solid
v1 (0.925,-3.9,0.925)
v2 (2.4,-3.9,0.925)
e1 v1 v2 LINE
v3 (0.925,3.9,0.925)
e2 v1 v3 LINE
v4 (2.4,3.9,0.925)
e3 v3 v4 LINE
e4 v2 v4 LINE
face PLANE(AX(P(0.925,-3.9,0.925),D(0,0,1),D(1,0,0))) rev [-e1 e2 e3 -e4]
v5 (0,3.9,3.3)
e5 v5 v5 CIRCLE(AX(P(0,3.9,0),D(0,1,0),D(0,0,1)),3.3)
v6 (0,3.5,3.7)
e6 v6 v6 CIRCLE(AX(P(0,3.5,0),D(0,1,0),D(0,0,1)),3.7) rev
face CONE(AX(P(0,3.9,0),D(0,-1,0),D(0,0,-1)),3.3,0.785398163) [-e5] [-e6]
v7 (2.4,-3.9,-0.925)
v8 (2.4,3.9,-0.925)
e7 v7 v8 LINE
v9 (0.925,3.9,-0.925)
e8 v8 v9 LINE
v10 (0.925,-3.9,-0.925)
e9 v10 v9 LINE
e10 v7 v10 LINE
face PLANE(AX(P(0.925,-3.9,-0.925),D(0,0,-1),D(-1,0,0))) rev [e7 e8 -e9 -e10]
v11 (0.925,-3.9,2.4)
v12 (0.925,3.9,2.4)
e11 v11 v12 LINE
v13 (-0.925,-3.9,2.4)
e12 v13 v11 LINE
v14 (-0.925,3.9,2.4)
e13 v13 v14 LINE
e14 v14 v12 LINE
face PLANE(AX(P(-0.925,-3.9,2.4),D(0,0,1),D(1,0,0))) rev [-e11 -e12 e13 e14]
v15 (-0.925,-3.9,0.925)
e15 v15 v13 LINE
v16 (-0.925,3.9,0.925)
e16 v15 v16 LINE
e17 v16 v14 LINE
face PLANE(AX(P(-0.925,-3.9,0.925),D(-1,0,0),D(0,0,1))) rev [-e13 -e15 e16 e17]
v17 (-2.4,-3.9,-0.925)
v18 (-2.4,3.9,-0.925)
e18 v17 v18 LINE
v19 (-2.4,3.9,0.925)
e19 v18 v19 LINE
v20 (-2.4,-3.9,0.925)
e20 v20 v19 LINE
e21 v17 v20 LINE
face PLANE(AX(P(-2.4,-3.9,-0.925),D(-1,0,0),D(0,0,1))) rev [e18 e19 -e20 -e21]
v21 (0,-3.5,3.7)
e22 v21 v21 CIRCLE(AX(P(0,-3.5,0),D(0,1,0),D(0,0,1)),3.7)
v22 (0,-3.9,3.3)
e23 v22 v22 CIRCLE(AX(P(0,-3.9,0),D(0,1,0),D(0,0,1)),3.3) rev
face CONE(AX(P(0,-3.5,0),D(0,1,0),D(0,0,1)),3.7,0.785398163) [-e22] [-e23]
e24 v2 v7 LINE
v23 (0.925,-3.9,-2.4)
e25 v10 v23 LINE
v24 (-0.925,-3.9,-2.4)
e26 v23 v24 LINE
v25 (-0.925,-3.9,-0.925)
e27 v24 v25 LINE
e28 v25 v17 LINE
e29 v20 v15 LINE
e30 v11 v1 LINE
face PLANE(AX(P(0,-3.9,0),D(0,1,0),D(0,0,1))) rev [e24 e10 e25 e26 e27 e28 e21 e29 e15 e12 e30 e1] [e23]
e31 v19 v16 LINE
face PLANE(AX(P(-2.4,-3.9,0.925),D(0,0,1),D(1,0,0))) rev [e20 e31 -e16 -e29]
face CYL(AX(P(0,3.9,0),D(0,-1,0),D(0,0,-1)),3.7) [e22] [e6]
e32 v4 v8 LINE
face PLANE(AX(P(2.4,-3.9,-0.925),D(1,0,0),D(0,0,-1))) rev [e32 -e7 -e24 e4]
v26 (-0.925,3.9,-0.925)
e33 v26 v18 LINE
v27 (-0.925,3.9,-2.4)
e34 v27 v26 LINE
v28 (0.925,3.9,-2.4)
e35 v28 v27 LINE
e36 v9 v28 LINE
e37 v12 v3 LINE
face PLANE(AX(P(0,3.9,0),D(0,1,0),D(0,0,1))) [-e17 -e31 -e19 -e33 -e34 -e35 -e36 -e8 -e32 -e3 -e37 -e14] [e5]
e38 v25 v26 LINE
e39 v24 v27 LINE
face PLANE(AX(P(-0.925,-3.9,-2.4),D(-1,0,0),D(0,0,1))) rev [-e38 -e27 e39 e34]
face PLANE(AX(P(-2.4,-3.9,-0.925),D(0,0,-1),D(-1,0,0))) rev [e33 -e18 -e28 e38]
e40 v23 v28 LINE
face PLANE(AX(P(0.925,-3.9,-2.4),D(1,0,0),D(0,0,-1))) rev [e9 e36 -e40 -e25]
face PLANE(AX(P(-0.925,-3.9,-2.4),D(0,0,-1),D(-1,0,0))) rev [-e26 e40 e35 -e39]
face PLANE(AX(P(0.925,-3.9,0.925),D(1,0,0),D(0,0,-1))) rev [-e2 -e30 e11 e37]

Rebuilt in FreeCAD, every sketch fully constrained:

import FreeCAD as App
import Part
import Sketcher
Q = App.Units.Quantity


def edges_at(feature, points):
    """Names of the edges that pass closest to the given points."""
    edges = feature.Shape.Edges
    near = lambda p: min(range(len(edges)), key=lambda i: edges[i].distToShape(Part.Vertex(*p))[0])
    return sorted({f"Edge{near(p) + 1}" for p in points})


def add_polygon(sketch, points):
    """Adds a closed chain of lines whose ends are joined by coincident constraints."""
    first, n = sketch.GeometryCount, len(points)
    for a, b in zip(points, points[1:] + points[:1]):
        sketch.addGeometry(Part.LineSegment(App.Vector(*a, 0), App.Vector(*b, 0)), False)
    for i in range(n):
        sketch.addConstraint(Sketcher.Constraint("Coincident", first + i, 2, first + (i + 1) % n, 1))

doc = App.newDocument("Part")
body = doc.addObject("PartDesign::Body", "Body")

# Sketch on XZ plane
sketch1 = body.newObject("Sketcher::SketchObject", "Sketch")
sketch1.AttachmentSupport = (doc.getObject("XZ_Plane"), [""])
sketch1.MapMode = "FlatFace"
sketch1.addGeometry(Part.Circle(App.Vector(0, 0, 0), App.Vector(0, 0, 1), 3.7), False)
sketch1.addConstraint([
    Sketcher.Constraint("Coincident", 0, 3, -1, 1),
    Sketcher.Constraint("Diameter", 0, Q("7.4 mm")),
])
pad1 = body.newObject("PartDesign::Pad", "Pad")
pad1.Profile = sketch1
pad1.Length = 7.8
pad1.Midplane = True

# Sketch on XZ plane
sketch2 = body.newObject("Sketcher::SketchObject", "Sketch001")
sketch2.AttachmentSupport = (doc.getObject("XZ_Plane"), [""])
sketch2.MapMode = "FlatFace"
sketch2.AttachmentOffset = App.Placement(App.Vector(0, 0, -3.9), App.Rotation())
add_polygon(sketch2, [(2.4, -0.9), (0.9, -0.9), (0.9, -2.4), (-0.9, -2.4), (-0.9, -0.9), (-2.4, -0.9), (-2.4, 0.9), (-0.9, 0.9), (-0.9, 2.4), (0.9, 2.4), (0.9, 0.9), (2.4, 0.9)])  # lines 0-11
sketch2.addConstraint([
    Sketcher.Constraint("Horizontal", 0),
    Sketcher.Constraint("Vertical", 1),
    Sketcher.Constraint("Horizontal", 2),
    Sketcher.Constraint("Vertical", 3),
    Sketcher.Constraint("Horizontal", 4),
    Sketcher.Constraint("Vertical", 5),
    Sketcher.Constraint("Horizontal", 6),
    Sketcher.Constraint("Vertical", 7),
    Sketcher.Constraint("Horizontal", 8),
    Sketcher.Constraint("Vertical", 9),
    Sketcher.Constraint("Horizontal", 10),
    Sketcher.Constraint("Vertical", 11),
    Sketcher.Constraint("Symmetric", 0, 2, 6, 2, -1, 1),
    Sketcher.Constraint("Symmetric", 2, 2, 8, 2, -1, 1),
    Sketcher.Constraint("Symmetric", 4, 2, 10, 2, -1, 1),
    Sketcher.Constraint("Symmetric", 0, 2, 3, 2, -2),
    Sketcher.Constraint("Equal", 10, 1),
    Sketcher.Constraint("Equal", 8, 5),
    Sketcher.Constraint("DistanceX", 2, 2, 2, 1, Q("1.85 mm")),
    Sketcher.Constraint("DistanceY", 1, 2, -1, 1, Q("2.4 mm")),
])
pocket1 = body.newObject("PartDesign::Pocket", "Pocket")
pocket1.Profile = sketch2
pocket1.Type = "ThroughAll"
pocket1.Reversed = True
doc.recompute()

chamfer = body.newObject("PartDesign::Chamfer", "Chamfer")
chamfer.Base = (pocket1, edges_at(pocket1, [(0, -3.9, -3.7), (0, 3.9, -3.7)]))
chamfer.Size = 0.4

doc.recompute()
